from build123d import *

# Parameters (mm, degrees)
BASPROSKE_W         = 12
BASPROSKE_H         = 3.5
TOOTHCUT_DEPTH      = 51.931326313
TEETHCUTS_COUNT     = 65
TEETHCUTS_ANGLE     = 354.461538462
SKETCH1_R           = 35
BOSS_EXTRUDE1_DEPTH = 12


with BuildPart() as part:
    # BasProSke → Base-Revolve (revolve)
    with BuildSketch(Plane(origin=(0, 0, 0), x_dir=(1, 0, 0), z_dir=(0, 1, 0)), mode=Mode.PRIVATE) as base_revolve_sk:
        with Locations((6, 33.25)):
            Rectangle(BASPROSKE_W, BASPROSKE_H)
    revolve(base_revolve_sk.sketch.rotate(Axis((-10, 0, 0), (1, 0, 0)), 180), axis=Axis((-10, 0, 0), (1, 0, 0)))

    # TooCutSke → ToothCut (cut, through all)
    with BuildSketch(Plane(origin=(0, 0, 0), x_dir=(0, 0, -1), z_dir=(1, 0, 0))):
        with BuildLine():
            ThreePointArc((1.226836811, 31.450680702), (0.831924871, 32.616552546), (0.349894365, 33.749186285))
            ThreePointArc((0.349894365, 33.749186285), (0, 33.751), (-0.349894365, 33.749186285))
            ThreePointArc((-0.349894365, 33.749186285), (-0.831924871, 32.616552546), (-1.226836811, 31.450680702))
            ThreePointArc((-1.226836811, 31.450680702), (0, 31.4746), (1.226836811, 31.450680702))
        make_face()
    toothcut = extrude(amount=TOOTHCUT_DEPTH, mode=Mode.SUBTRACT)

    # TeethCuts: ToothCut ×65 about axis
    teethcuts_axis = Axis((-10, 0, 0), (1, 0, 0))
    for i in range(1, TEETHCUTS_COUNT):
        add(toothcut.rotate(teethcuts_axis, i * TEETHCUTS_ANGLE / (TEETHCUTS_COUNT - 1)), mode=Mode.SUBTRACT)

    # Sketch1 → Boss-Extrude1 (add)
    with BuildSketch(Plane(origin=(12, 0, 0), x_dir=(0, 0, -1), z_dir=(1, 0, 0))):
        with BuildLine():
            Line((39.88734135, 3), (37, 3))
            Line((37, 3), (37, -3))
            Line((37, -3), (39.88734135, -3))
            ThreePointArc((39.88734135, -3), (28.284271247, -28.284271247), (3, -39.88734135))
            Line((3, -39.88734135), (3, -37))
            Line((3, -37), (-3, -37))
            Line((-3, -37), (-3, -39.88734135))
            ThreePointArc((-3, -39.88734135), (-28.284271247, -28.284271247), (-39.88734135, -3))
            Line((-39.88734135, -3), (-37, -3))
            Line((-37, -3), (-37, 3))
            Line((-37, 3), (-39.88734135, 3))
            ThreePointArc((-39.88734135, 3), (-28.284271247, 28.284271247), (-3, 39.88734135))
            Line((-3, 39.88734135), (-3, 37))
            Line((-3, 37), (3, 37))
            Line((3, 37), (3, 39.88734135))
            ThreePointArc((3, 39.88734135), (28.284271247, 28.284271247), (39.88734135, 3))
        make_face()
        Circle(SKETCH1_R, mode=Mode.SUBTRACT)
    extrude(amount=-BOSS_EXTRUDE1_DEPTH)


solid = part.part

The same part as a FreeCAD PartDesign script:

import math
import FreeCAD as App
import Part
import Sketcher


def add_polygon(sketch, points):
    """Adds a closed chain of lines whose ends are joined by coincident constraints."""
    first, n = sketch.GeometryCount, len(points)
    for a, b in zip(points, points[1:] + points[:1]):
        sketch.addGeometry(Part.LineSegment(App.Vector(*a, 0), App.Vector(*b, 0)), False)
    for i in range(n):
        sketch.addConstraint(Sketcher.Constraint("Coincident", first + i, 2, first + (i + 1) % n, 1))

doc = App.newDocument("Part")
params = doc.addObject("Spreadsheet::Sheet", "Params")
for row, (alias, value) in enumerate([
    ("sketch1_width", "12 mm"),
    ("sketch1_height", "3.5 mm"),
    ("revolution_angle", "360 deg"),
    ("sketch2_radius", "16.25 mm"),
    ("sketch3_diameter", "70 mm"),
    ("sketch3_radius", "40 mm"),
    ("sketch3_width", "6 mm"),
    ("pad1_length", "12 mm"),
], start=1):
    params.set(f"A{row}", alias)
    params.set(f"B{row}", "=" + value)
    params.setAlias(f"B{row}", alias)

body = doc.addObject("PartDesign::Body", "Body")

# Sketch on XZ plane
sketch1 = body.newObject("Sketcher::SketchObject", "Sketch")
sketch1.AttachmentSupport = (doc.getObject("XZ_Plane"), [""])
sketch1.MapMode = "FlatFace"
add_polygon(sketch1, [(0, -35), (0, -31.5), (12, -31.5), (12, -35)])  # lines 0-3
sketch1.addConstraint([
    Sketcher.Constraint("Vertical", 0),
    Sketcher.Constraint("Horizontal", 1),
    Sketcher.Constraint("Vertical", 2),
    Sketcher.Constraint("Horizontal", 3),
    Sketcher.Constraint("PointOnObject", 0, 2, -2),
    Sketcher.Constraint("DistanceX", 1, 1, 1, 2, 12.0),
    Sketcher.Constraint("DistanceY", 0, 1, 0, 2, 3.5),
    Sketcher.Constraint("DistanceY", 2, 2, -1, 1, 35.0),
])
sketch1.setExpression("Constraints[9]", "Params.sketch1_width")
sketch1.setExpression("Constraints[10]", "Params.sketch1_height")
revolution = body.newObject("PartDesign::Revolution", "Revolution")
revolution.Profile = sketch1
revolution.ReferenceAxis = (sketch1, ["H_Axis"])
revolution.setExpression("Angle", "Params.revolution_angle")

# Sketch on YZ plane
sketch2 = body.newObject("Sketcher::SketchObject", "Sketch001")
sketch2.AttachmentSupport = (doc.getObject("YZ_Plane"), [""])
sketch2.MapMode = "FlatFace"
sketch2.addGeometry([
    Part.ArcOfCircle(Part.Circle(App.Vector(26.8, 14.4, 0), App.Vector(0, 0, 1), 16.2), math.radians(-73.46), math.radians(-64.78)),
    Part.ArcOfCircle(Part.Circle(App.Vector(0, 0, 0), App.Vector(0, 0, 1), 33.8), math.radians(-0.59), math.radians(0.59)),
    Part.ArcOfCircle(Part.Circle(App.Vector(26.8, -14.4, 0), App.Vector(0, 0, 1), 16.2), math.radians(64.78), math.radians(73.46)),
    Part.ArcOfCircle(Part.Circle(App.Vector(0, 0, 0), App.Vector(0, 0, 1), 31.5), math.radians(-2.23), math.radians(2.23)),
], False)
sketch2.addConstraint([
    Sketcher.Constraint("Coincident", 0, 2, 1, 1),
    Sketcher.Constraint("Coincident", 1, 2, 2, 1),
    Sketcher.Constraint("Coincident", 2, 2, 3, 2),
    Sketcher.Constraint("Coincident", 3, 1, 0, 1),
    Sketcher.Constraint("Coincident", 1, 3, -1, 1),
    Sketcher.Constraint("Coincident", 3, 3, -1, 1),
    Sketcher.Constraint("Equal", 0, 2),
    Sketcher.Constraint("Symmetric", 0, 3, 2, 3, -1),
    Sketcher.Constraint("Radius", 0, 16.25),
    Sketcher.Constraint("Radius", 3, 31.4746),
    Sketcher.Constraint("Radius", 1, 33.750991),
    Sketcher.Constraint("DistanceX", 1, 3, 0, 3, 26.823999),
    Sketcher.Constraint("DistanceY", 2, 3, 0, 2, 14.000701),
])
sketch2.setExpression("Constraints[8]", "Params.sketch2_radius")
pocket1 = body.newObject("PartDesign::Pocket", "Pocket")
pocket1.Profile = sketch2
pocket1.Type = "ThroughAll"
pocket1.Reversed = True
doc.recompute()

polarpattern = body.newObject("PartDesign::PolarPattern", "PolarPattern")
polarpattern.Originals = [pocket1]
polarpattern.Axis = (doc.getObject("X_Axis"), [""])
polarpattern.Angle = 360
polarpattern.Occurrences = 65
body.Tip = polarpattern

# Sketch on YZ plane
sketch3 = body.newObject("Sketcher::SketchObject", "Sketch002")
sketch3.AttachmentSupport = (doc.getObject("YZ_Plane"), [""])
sketch3.MapMode = "FlatFace"
sketch3.AttachmentOffset = App.Placement(App.Vector(0, 0, 12), App.Rotation())
sketch3.addGeometry([
    Part.LineSegment(App.Vector(3, -37, 0), App.Vector(3, -39.9, 0)),  # 0
    Part.ArcOfCircle(Part.Circle(App.Vector(0, 0, 0), App.Vector(0, 0, 1), 40), math.radians(-86), math.radians(-4)),  # 1
    Part.LineSegment(App.Vector(39.9, -3, 0), App.Vector(37, -3, 0)),  # 2
    Part.LineSegment(App.Vector(37, -3, 0), App.Vector(37, 3, 0)),  # 3
    Part.LineSegment(App.Vector(37, 3, 0), App.Vector(39.9, 3, 0)),  # 4
    Part.ArcOfCircle(Part.Circle(App.Vector(0, 0, 0), App.Vector(0, 0, 1), 40), math.radians(4), math.radians(86)),  # 5
    Part.LineSegment(App.Vector(3, 39.9, 0), App.Vector(3, 37, 0)),  # 6
    Part.LineSegment(App.Vector(3, 37, 0), App.Vector(-3, 37, 0)),  # 7
    Part.LineSegment(App.Vector(-3, 37, 0), App.Vector(-3, 39.9, 0)),  # 8
    Part.ArcOfCircle(Part.Circle(App.Vector(0, 0, 0), App.Vector(0, 0, 1), 40), math.radians(94), math.radians(176)),  # 9
    Part.LineSegment(App.Vector(-39.9, 3, 0), App.Vector(-37, 3, 0)),  # 10
    Part.LineSegment(App.Vector(-37, 3, 0), App.Vector(-37, -3, 0)),  # 11
    Part.LineSegment(App.Vector(-37, -3, 0), App.Vector(-39.9, -3, 0)),  # 12
    Part.ArcOfCircle(Part.Circle(App.Vector(0, 0, 0), App.Vector(0, 0, 1), 40), math.radians(-176), math.radians(-94)),  # 13
    Part.LineSegment(App.Vector(-3, -39.9, 0), App.Vector(-3, -37, 0)),  # 14
    Part.LineSegment(App.Vector(-3, -37, 0), App.Vector(3, -37, 0)),  # 15
    Part.Circle(App.Vector(0, 0, 0), App.Vector(0, 0, 1), 35),  # 16
], False)
sketch3.addConstraint([
    Sketcher.Constraint("Coincident", 0, 2, 1, 1),
    Sketcher.Constraint("Coincident", 1, 2, 2, 1),
    Sketcher.Constraint("Coincident", 2, 2, 3, 1),
    Sketcher.Constraint("Coincident", 3, 2, 4, 1),
    Sketcher.Constraint("Coincident", 4, 2, 5, 1),
    Sketcher.Constraint("Coincident", 5, 2, 6, 1),
    Sketcher.Constraint("Coincident", 6, 2, 7, 1),
    Sketcher.Constraint("Coincident", 7, 2, 8, 1),
    Sketcher.Constraint("Coincident", 8, 2, 9, 1),
    Sketcher.Constraint("Coincident", 9, 2, 10, 1),
    Sketcher.Constraint("Coincident", 10, 2, 11, 1),
    Sketcher.Constraint("Coincident", 11, 2, 12, 1),
    Sketcher.Constraint("Coincident", 12, 2, 13, 1),
    Sketcher.Constraint("Coincident", 13, 2, 14, 1),
    Sketcher.Constraint("Coincident", 14, 2, 15, 1),
    Sketcher.Constraint("Coincident", 15, 2, 0, 1),
    Sketcher.Constraint("Vertical", 0),
    Sketcher.Constraint("Horizontal", 2),
    Sketcher.Constraint("Vertical", 3),
    Sketcher.Constraint("Horizontal", 4),
    Sketcher.Constraint("Vertical", 6),
    Sketcher.Constraint("Horizontal", 7),
    Sketcher.Constraint("Vertical", 8),
    Sketcher.Constraint("Horizontal", 10),
    Sketcher.Constraint("Vertical", 11),
    Sketcher.Constraint("Horizontal", 12),
    Sketcher.Constraint("Vertical", 14),
    Sketcher.Constraint("Horizontal", 15),
    Sketcher.Constraint("Coincident", 1, 3, -1, 1),
    Sketcher.Constraint("Coincident", 5, 3, -1, 1),
    Sketcher.Constraint("Coincident", 9, 3, -1, 1),
    Sketcher.Constraint("Coincident", 13, 3, -1, 1),
    Sketcher.Constraint("Coincident", 16, 3, -1, 1),
    Sketcher.Constraint("Equal", 1, 5),
    Sketcher.Constraint("Equal", 5, 9),
    Sketcher.Constraint("Equal", 9, 13),
    Sketcher.Constraint("Symmetric", 2, 2, 10, 2, -1, 1),
    Sketcher.Constraint("Symmetric", 6, 2, 14, 2, -1, 1),
    Sketcher.Constraint("Horizontal", 5, 2, 8, 2),
    Sketcher.Constraint("Horizontal", 4, 2, 9, 2),
    Sketcher.Constraint("Horizontal", 2, 2, 11, 2),
    Sketcher.Constraint("Horizontal", 0, 2, 13, 2),
    Sketcher.Constraint("Equal", 12, 0),
    Sketcher.Constraint("Equal", 15, 3),
    Sketcher.Constraint("Diameter", 16, 70.0),
    Sketcher.Constraint("Radius", 1, 40.0),
    Sketcher.Constraint("DistanceX", 7, 2, 7, 1, 6.0),
    Sketcher.Constraint("DistanceX", -1, 1, 2, 2, 37.0),
])
sketch3.setExpression("Constraints[44]", "Params.sketch3_diameter")
sketch3.setExpression("Constraints[45]", "Params.sketch3_radius")
sketch3.setExpression("Constraints[46]", "Params.sketch3_width")
pad1 = body.newObject("PartDesign::Pad", "Pad")
pad1.Profile = sketch3
pad1.setExpression("Length", "Params.pad1_length")
pad1.Reversed = True

doc.recompute()
